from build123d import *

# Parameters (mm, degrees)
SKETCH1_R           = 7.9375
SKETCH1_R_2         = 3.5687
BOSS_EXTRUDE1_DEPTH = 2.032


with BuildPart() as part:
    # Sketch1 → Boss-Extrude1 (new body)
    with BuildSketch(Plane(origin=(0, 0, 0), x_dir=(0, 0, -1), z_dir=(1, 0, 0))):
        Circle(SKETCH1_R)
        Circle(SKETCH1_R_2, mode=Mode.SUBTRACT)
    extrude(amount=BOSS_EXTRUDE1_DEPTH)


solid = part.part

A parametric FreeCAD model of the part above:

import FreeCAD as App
import Part
import Sketcher
from FreeCAD import Vector
Q = App.Units.Quantity

doc = App.newDocument("Part")
params = doc.addObject("Spreadsheet::Sheet", "Params")
for row, (alias, value) in enumerate([
    ("sketch1_diameter", "0.625 in"),
    ("sketch1_diameter2", "0.281 in"),
    ("pad1_length", "0.08 in"),
], start=1):
    params.set(f"A{row}", alias)
    params.set(f"B{row}", "=" + value)
    params.setAlias(f"B{row}", alias)

body = doc.addObject("PartDesign::Body", "Body")

# Sketch on YZ plane
sketch1 = body.newObject("Sketcher::SketchObject", "Sketch")
sketch1.AttachmentSupport = (doc.getObject("YZ_Plane"), [""])
sketch1.MapMode = "FlatFace"
sketch1.addGeometry([
    Part.Circle(Vector(0, 0, 0), Vector(0, 0, 1), 7.9375),
    Part.Circle(Vector(0, 0, 0), Vector(0, 0, 1), 3.5687),
], False)
sketch1.addConstraint([
    Sketcher.Constraint("Coincident", 0, 3, -1, 1),
    Sketcher.Constraint("Coincident", 1, 3, -1, 1),
    Sketcher.Constraint("Diameter", 0, Q("0.625 in")),
    Sketcher.Constraint("Diameter", 1, Q("0.281 in")),
])
sketch1.setExpression("Constraints[2]", "Params.sketch1_diameter")
sketch1.setExpression("Constraints[3]", "Params.sketch1_diameter2")
pad1 = body.newObject("PartDesign::Pad", "Pad")
pad1.Profile = sketch1
pad1.setExpression("Length", "Params.pad1_length")

doc.recompute()
